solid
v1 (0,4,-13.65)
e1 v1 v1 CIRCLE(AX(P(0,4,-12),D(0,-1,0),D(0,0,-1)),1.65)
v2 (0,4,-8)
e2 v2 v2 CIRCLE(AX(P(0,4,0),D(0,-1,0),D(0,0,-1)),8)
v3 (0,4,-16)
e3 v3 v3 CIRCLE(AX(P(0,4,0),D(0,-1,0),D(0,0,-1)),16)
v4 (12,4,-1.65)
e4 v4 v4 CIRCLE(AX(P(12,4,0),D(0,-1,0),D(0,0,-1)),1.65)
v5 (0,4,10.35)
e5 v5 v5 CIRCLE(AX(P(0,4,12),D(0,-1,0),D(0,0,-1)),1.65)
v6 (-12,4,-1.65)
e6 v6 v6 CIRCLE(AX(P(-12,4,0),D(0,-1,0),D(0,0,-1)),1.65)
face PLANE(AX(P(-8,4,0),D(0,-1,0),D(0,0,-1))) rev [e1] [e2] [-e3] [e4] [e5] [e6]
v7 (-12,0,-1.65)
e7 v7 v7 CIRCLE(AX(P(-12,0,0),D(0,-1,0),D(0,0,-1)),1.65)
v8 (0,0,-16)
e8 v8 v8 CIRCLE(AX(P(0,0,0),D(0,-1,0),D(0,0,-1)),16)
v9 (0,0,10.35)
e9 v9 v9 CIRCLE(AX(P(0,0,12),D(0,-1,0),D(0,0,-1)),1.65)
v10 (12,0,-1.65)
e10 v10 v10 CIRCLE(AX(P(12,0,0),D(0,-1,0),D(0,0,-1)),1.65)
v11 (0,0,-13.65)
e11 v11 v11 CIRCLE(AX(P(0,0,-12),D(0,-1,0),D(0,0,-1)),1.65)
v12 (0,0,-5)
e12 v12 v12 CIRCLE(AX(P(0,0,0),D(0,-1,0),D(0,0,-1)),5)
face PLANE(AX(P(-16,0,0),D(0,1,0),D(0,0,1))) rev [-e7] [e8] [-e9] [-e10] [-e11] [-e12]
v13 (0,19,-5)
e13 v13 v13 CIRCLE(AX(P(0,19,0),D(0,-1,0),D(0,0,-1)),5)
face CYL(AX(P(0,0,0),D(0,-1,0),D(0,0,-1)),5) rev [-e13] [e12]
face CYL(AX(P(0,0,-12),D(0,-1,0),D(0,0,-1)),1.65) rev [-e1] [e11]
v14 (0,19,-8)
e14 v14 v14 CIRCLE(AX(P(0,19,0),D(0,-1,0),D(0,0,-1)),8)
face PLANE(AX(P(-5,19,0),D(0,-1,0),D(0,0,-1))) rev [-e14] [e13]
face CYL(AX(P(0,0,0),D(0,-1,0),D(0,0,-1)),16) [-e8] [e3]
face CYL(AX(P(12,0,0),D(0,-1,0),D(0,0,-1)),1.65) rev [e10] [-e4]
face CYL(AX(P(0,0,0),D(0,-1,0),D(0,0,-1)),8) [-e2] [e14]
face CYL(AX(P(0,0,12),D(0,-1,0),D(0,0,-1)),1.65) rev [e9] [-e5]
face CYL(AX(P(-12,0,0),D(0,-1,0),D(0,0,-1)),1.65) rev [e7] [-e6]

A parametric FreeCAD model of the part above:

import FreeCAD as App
import Part
import Sketcher
from FreeCAD import Vector
Q = App.Units.Quantity

doc = App.newDocument("Part")
body = doc.addObject("PartDesign::Body", "Body")

# Sketch on XY plane
sketch1 = body.newObject("Sketcher::SketchObject", "Sketch")
sketch1.AttachmentSupport = (doc.getObject("XY_Plane"), [""])
sketch1.MapMode = "FlatFace"
sketch1.addGeometry([
    Part.LineSegment(Vector(-5, 0, 0), Vector(-5, 19, 0)),  # 0
    Part.LineSegment(Vector(-5, 19, 0), Vector(-8, 19, 0)),  # 1
    Part.LineSegment(Vector(-8, 19, 0), Vector(-8, 4, 0)),  # 2
    Part.LineSegment(Vector(-8, 4, 0), Vector(-16, 4, 0)),  # 3
    Part.LineSegment(Vector(-16, 4, 0), Vector(-16, 0, 0)),  # 4
    Part.LineSegment(Vector(-16, 0, 0), Vector(-5, 0, 0)),  # 5
], False)
sketch1.addConstraint([
    Sketcher.Constraint("Coincident", 0, 2, 1, 1),
    Sketcher.Constraint("Coincident", 1, 2, 2, 1),
    Sketcher.Constraint("Coincident", 2, 2, 3, 1),
    Sketcher.Constraint("Coincident", 3, 2, 4, 1),
    Sketcher.Constraint("Coincident", 4, 2, 5, 1),
    Sketcher.Constraint("Coincident", 5, 2, 0, 1),
    Sketcher.Constraint("Vertical", 0),
    Sketcher.Constraint("Horizontal", 1),
    Sketcher.Constraint("Vertical", 2),
    Sketcher.Constraint("Horizontal", 3),
    Sketcher.Constraint("Vertical", 4),
    Sketcher.Constraint("Horizontal", 5),
    Sketcher.Constraint("PointOnObject", 4, 2, -1),
    Sketcher.Constraint("DistanceX", 1, 2, 1, 1, Q("3 mm")),
    Sketcher.Constraint("DistanceX", 3, 2, 3, 1, Q("8 mm")),
    Sketcher.Constraint("DistanceY", 0, 1, 0, 2, Q("19 mm")),
    Sketcher.Constraint("DistanceY", 2, 2, 2, 1, Q("15 mm")),
    Sketcher.Constraint("DistanceX", 0, 2, -1, 1, Q("5 mm")),
])
revolution = body.newObject("PartDesign::Revolution", "Revolution")
revolution.Profile = sketch1
revolution.ReferenceAxis = (sketch1, ["V_Axis"])
revolution.Angle = 360

# Sketch on XZ plane
sketch2 = body.newObject("Sketcher::SketchObject", "Sketch001")
sketch2.AttachmentSupport = (doc.getObject("XZ_Plane"), [""])
sketch2.MapMode = "FlatFace"
sketch2.addGeometry([
    Part.Circle(Vector(12, 0, 0), Vector(0, 0, 1), 1.6),
    Part.Circle(Vector(0, -12, 0), Vector(0, 0, 1), 1.6),
    Part.Circle(Vector(-12, 0, 0), Vector(0, 0, 1), 1.6),
    Part.Circle(Vector(0, 12, 0), Vector(0, 0, 1), 1.6),
], False)
sketch2.addConstraint([
    Sketcher.Constraint("Equal", 0, 1),
    Sketcher.Constraint("Equal", 1, 2),
    Sketcher.Constraint("Equal", 2, 3),
    Sketcher.Constraint("Symmetric", 0, 3, 2, 3, -1, 1),
    Sketcher.Constraint("Symmetric", 1, 3, 3, 3, -1, 1),
    Sketcher.Constraint("PointOnObject", 0, 3, -1),
    Sketcher.Constraint("PointOnObject", 1, 3, -2),
    Sketcher.Constraint("Diameter", 0, Q("3.3 mm")),
    Sketcher.Constraint("DistanceX", -1, 1, 0, 3, Q("12 mm")),
    Sketcher.Constraint("DistanceY", 1, 3, -1, 1, Q("12 mm")),
])
doc.recompute()
hole = body.newObject("PartDesign::Hole", "Hole")
hole.Profile = sketch2
hole.ThreadType = "None"
hole.Diameter = 3.3
hole.DepthType = "ThroughAll"

doc.recompute()
